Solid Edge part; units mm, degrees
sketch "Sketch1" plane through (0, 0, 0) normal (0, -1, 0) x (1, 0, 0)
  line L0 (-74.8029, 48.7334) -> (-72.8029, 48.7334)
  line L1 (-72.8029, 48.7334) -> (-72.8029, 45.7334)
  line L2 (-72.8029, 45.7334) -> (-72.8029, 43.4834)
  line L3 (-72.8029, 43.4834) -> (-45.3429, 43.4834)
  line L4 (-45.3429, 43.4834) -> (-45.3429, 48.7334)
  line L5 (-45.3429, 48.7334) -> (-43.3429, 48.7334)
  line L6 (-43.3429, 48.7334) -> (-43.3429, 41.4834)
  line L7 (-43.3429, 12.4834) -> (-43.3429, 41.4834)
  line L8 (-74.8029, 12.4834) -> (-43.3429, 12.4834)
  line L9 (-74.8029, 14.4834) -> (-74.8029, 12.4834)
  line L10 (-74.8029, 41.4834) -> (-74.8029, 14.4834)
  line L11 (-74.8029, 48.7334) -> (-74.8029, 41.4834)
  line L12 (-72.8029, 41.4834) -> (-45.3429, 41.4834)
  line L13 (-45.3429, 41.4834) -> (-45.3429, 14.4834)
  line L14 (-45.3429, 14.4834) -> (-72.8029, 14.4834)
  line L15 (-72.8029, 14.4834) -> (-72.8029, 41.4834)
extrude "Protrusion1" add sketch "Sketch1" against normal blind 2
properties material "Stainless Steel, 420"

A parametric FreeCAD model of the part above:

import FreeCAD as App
import Part
import Sketcher


def add_polygon(sketch, points):
    """Adds a closed chain of lines whose ends are joined by coincident constraints."""
    first, n = sketch.GeometryCount, len(points)
    for a, b in zip(points, points[1:] + points[:1]):
        sketch.addGeometry(Part.LineSegment(App.Vector(*a, 0), App.Vector(*b, 0)), False)
    for i in range(n):
        sketch.addConstraint(Sketcher.Constraint("Coincident", first + i, 2, first + (i + 1) % n, 1))

doc = App.newDocument("Part")
body = doc.addObject("PartDesign::Body", "Body")

# Sketch on XZ plane
sketch1 = body.newObject("Sketcher::SketchObject", "Sketch")
sketch1.AttachmentSupport = (doc.getObject("XZ_Plane"), [""])
sketch1.MapMode = "FlatFace"
add_polygon(sketch1, [(-72.8, 48.7), (-74.8, 48.7), (-74.8, 12.5), (-43.3, 12.5), (-43.3, 48.7), (-45.3, 48.7), (-45.3, 43.5), (-72.8, 43.5)])  # lines 0-7
add_polygon(sketch1, [(-72.8, 14.5), (-72.8, 41.5), (-45.3, 41.5), (-45.3, 14.5)])  # lines 8-11
sketch1.addConstraint([
    Sketcher.Constraint("Horizontal", 0),
    Sketcher.Constraint("Vertical", 1),
    Sketcher.Constraint("Horizontal", 2),
    Sketcher.Constraint("Vertical", 3),
    Sketcher.Constraint("Horizontal", 4),
    Sketcher.Constraint("Vertical", 5),
    Sketcher.Constraint("Horizontal", 6),
    Sketcher.Constraint("Vertical", 7),
    Sketcher.Constraint("Vertical", 8),
    Sketcher.Constraint("Horizontal", 9),
    Sketcher.Constraint("Vertical", 10),
    Sketcher.Constraint("Horizontal", 11),
    Sketcher.Constraint("Horizontal", 0, 2, 3, 2),
    Sketcher.Constraint("Vertical", 7, 2, 8, 2),
    Sketcher.Constraint("Vertical", 5, 2, 9, 2),
    Sketcher.Constraint("Equal", 0, 4),
    Sketcher.Constraint("DistanceX", 0, 2, 0, 1, 2.0),
    Sketcher.Constraint("DistanceY", 8, 1, 8, 2, 27.0),
    Sketcher.Constraint("DistanceY", 2, 2, 5, 2, 31.0),
    Sketcher.Constraint("DistanceY", 8, 2, 6, 2, 2.0),
    Sketcher.Constraint("DistanceX", 2, 1, 2, 2, 31.46),
    Sketcher.Constraint("DistanceY", 1, 2, 1, 1, 36.25),
    Sketcher.Constraint("DistanceX", 0, 2, -1, 1, 74.803),
    Sketcher.Constraint("DistanceY", -1, 1, 0, 2, 48.7334),
])
pad1 = body.newObject("PartDesign::Pad", "Pad")
pad1.Profile = sketch1
pad1.Length = 2
pad1.Reversed = True

doc.recompute()
